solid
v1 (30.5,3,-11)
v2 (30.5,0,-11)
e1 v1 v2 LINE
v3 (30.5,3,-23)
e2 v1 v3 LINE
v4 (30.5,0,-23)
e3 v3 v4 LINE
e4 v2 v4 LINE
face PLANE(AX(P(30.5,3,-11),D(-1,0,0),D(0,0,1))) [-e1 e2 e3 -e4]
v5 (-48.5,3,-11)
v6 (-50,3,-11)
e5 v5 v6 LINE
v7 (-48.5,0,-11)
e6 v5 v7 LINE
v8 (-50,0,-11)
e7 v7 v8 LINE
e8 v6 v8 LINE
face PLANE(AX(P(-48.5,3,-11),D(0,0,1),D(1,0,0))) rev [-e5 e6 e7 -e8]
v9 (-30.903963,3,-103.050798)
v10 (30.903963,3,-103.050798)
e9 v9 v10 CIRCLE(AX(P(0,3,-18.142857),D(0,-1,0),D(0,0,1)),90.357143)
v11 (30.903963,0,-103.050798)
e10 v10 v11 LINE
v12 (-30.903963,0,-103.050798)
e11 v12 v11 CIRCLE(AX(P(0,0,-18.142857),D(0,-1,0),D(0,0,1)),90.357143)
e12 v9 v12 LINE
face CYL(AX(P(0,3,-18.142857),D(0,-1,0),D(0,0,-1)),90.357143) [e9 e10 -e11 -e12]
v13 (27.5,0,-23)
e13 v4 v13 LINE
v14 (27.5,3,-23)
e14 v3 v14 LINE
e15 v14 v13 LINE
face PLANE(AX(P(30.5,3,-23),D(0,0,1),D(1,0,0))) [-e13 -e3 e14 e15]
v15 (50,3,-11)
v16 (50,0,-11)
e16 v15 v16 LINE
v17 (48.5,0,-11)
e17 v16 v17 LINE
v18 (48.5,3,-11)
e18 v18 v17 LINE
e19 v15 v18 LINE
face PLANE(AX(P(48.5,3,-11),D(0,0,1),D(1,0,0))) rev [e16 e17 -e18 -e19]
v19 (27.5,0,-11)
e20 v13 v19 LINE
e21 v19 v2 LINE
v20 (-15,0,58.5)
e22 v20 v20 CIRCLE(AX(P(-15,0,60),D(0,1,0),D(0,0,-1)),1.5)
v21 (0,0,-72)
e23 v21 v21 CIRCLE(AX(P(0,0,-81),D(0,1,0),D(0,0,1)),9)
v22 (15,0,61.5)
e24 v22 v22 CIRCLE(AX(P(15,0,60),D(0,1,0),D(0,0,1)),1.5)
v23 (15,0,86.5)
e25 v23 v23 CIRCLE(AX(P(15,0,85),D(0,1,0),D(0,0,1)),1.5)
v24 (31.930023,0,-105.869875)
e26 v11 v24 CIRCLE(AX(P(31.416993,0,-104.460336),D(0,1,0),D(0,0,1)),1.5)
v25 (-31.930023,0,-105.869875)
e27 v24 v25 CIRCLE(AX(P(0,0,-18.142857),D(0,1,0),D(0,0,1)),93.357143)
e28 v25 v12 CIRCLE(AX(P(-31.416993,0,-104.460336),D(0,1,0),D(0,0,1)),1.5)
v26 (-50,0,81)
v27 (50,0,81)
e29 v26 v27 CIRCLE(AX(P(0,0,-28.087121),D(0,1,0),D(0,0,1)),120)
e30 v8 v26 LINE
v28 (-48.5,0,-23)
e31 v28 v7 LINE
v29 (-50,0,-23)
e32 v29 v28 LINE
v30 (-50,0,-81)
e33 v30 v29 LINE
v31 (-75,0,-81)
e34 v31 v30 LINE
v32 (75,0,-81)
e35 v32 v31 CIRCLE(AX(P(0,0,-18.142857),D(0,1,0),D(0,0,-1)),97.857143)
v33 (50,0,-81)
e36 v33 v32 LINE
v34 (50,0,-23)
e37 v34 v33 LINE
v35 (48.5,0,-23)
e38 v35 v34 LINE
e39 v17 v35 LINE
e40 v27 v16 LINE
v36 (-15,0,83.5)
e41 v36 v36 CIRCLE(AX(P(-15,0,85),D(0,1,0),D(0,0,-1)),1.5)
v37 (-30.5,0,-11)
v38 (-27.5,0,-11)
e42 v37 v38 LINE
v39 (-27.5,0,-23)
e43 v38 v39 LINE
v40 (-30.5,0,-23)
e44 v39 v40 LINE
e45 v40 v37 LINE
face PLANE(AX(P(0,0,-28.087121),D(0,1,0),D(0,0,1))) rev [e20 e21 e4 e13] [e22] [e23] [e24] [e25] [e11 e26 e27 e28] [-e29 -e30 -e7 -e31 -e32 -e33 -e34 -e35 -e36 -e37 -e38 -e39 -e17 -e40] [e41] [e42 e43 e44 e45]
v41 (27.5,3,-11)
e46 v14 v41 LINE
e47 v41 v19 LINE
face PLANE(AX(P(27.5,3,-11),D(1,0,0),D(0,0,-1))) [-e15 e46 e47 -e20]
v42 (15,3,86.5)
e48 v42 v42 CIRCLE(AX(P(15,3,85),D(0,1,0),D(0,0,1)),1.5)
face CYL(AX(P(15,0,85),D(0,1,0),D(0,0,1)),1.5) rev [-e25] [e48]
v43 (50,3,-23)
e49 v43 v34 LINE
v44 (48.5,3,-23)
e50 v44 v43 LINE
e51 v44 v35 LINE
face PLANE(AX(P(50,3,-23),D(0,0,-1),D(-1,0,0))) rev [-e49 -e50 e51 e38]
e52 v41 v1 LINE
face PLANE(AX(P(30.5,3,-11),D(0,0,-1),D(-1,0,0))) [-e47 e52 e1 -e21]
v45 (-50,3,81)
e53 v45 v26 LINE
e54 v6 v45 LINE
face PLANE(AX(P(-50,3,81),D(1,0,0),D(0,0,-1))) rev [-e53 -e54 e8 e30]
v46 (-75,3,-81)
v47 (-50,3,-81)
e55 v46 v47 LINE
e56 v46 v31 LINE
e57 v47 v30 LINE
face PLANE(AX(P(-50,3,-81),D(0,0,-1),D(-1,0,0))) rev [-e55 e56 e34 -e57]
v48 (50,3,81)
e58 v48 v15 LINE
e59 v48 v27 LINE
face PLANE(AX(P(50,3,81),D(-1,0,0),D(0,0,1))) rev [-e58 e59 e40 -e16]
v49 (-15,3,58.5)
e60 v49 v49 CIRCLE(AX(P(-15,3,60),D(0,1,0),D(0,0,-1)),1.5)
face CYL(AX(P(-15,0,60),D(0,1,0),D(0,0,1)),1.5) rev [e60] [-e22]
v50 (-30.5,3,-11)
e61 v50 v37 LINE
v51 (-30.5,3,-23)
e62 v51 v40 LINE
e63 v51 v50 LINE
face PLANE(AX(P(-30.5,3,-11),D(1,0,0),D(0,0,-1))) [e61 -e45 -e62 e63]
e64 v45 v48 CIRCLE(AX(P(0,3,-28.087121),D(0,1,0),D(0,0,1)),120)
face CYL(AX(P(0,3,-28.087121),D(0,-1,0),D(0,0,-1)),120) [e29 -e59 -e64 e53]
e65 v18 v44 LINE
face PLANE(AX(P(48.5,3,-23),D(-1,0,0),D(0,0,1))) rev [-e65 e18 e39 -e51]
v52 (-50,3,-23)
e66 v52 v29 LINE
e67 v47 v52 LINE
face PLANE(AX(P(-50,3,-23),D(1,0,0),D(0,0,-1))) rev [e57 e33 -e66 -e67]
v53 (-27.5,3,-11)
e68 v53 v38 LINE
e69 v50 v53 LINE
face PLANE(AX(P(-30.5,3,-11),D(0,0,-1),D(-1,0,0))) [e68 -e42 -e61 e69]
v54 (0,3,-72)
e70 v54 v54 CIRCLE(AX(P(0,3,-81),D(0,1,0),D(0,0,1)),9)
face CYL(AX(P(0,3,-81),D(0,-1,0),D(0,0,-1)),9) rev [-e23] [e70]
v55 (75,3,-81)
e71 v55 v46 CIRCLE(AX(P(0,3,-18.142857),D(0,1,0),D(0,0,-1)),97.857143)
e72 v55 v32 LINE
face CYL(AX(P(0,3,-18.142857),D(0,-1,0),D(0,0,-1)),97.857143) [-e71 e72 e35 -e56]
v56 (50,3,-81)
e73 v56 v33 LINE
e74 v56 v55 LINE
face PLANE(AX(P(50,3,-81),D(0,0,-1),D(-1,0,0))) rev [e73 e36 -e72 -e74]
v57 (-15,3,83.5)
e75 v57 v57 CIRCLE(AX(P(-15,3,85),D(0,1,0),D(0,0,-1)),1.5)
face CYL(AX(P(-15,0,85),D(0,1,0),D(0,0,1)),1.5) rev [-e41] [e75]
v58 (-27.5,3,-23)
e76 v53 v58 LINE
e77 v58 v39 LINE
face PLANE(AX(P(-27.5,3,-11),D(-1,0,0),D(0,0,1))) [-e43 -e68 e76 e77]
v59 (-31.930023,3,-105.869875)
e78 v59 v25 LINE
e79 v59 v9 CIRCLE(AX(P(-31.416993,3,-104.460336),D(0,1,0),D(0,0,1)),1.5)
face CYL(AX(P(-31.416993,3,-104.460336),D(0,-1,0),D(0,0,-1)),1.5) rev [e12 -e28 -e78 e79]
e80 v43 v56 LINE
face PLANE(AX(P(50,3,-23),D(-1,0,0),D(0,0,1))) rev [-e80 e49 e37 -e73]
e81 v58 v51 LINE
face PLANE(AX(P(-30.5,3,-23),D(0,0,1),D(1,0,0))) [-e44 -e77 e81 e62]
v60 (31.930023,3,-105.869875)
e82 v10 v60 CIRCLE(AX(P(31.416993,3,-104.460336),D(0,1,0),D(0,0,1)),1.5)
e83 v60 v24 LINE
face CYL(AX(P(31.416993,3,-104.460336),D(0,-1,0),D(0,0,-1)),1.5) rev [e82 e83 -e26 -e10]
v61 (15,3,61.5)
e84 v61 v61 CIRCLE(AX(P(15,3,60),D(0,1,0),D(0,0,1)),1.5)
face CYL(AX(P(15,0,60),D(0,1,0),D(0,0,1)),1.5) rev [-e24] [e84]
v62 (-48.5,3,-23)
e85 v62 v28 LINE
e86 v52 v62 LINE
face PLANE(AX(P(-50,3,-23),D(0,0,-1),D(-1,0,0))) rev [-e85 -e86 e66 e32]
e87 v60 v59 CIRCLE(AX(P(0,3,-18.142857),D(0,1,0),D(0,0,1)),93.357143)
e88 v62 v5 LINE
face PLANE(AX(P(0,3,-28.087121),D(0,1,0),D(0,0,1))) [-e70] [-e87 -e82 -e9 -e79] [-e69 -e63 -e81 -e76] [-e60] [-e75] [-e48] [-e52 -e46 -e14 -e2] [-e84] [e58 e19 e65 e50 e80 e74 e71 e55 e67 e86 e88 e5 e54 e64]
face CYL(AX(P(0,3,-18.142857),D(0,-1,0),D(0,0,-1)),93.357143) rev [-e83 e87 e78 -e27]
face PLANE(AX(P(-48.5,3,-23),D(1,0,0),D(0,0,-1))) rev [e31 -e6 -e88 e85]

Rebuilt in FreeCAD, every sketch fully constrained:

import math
import FreeCAD as App
import Part
import Sketcher
from FreeCAD import Vector


def add_polygon(sketch, points):
    """Adds a closed chain of lines whose ends are joined by coincident constraints."""
    first, n = sketch.GeometryCount, len(points)
    for a, b in zip(points, points[1:] + points[:1]):
        sketch.addGeometry(Part.LineSegment(App.Vector(*a, 0), App.Vector(*b, 0)), False)
    for i in range(n):
        sketch.addConstraint(Sketcher.Constraint("Coincident", first + i, 2, first + (i + 1) % n, 1))

doc = App.newDocument("Part")
body = doc.addObject("PartDesign::Body", "Body")

# Sketch on XZ plane
sketch1 = body.newObject("Sketcher::SketchObject", "Sketch")
sketch1.AttachmentSupport = (doc.getObject("XZ_Plane"), [""])
sketch1.MapMode = "FlatFace"
sketch1.addGeometry(Part.LineSegment(Vector(50, 81, 0), Vector(50, -11, 0)), False)  # 0
sketch1.addGeometry(Part.LineSegment(Vector(50, -11, 0), Vector(48.5, -11, 0)), False)  # 1
sketch1.addGeometry(Part.LineSegment(Vector(48.5, -11, 0), Vector(48.5, -23, 0)), False)  # 2
sketch1.addGeometry(Part.LineSegment(Vector(48.5, -23, 0), Vector(50, -23, 0)), False)  # 3
sketch1.addGeometry(Part.LineSegment(Vector(50, -23, 0), Vector(50, -81, 0)), False)  # 4
sketch1.addGeometry(Part.LineSegment(Vector(50, -81, 0), Vector(75, -81, 0)), False)  # 5
sketch1.addGeometry(Part.ArcOfCircle(Part.Circle(Vector(0, -18.1, 0), Vector(0, 0, 1), 97.9), math.radians(-140), math.radians(-40)), False)  # 6
sketch1.addGeometry(Part.LineSegment(Vector(-75, -81, 0), Vector(-50, -81, 0)), False)  # 7
sketch1.addGeometry(Part.LineSegment(Vector(-50, -81, 0), Vector(-50, -23, 0)), False)  # 8
sketch1.addGeometry(Part.LineSegment(Vector(-50, -23, 0), Vector(-48.5, -23, 0)), False)  # 9
sketch1.addGeometry(Part.LineSegment(Vector(-48.5, -23, 0), Vector(-48.5, -11, 0)), False)  # 10
sketch1.addGeometry(Part.LineSegment(Vector(-48.5, -11, 0), Vector(-50, -11, 0)), False)  # 11
sketch1.addGeometry(Part.LineSegment(Vector(-50, -11, 0), Vector(-50, 81, 0)), False)  # 12
sketch1.addGeometry(Part.ArcOfCircle(Part.Circle(Vector(0, -28.1, 0), Vector(0, 0, 1), 120), math.radians(65), math.radians(115)), False)  # 13
add_polygon(sketch1, [(-27.5, -11), (-30.5, -11), (-30.5, -23), (-27.5, -23)])  # lines 14-17
add_polygon(sketch1, [(30.5, -11), (27.5, -11), (27.5, -23), (30.5, -23)])  # lines 18-21
sketch1.addGeometry(Part.Circle(Vector(0, -81, 0), Vector(0, 0, 1), 9), False)  # 22
sketch1.addGeometry(Part.ArcOfCircle(Part.Circle(Vector(0, -18.1, 0), Vector(0, 0, 1), 93.4), math.radians(-110), math.radians(-70)), False)  # 23
sketch1.addGeometry(Part.ArcOfCircle(Part.Circle(Vector(31.4, -104.5, 0), Vector(0, 0, 1), 1.5), math.radians(-70), math.radians(110)), False)  # 24
sketch1.addGeometry(Part.ArcOfCircle(Part.Circle(Vector(0, -18.1, 0), Vector(0, 0, 1), 90.4), math.radians(-110), math.radians(-70)), False)  # 25
sketch1.addGeometry(Part.ArcOfCircle(Part.Circle(Vector(-31.4, -104.5, 0), Vector(0, 0, 1), 1.5), math.radians(70), math.radians(250)), False)  # 26
sketch1.addConstraint(Sketcher.Constraint("Coincident", 0, 2, 1, 1))
sketch1.addConstraint(Sketcher.Constraint("Coincident", 1, 2, 2, 1))
sketch1.addConstraint(Sketcher.Constraint("Coincident", 2, 2, 3, 1))
sketch1.addConstraint(Sketcher.Constraint("Coincident", 3, 2, 4, 1))
sketch1.addConstraint(Sketcher.Constraint("Coincident", 4, 2, 5, 1))
sketch1.addConstraint(Sketcher.Constraint("Coincident", 5, 2, 6, 2))
sketch1.addConstraint(Sketcher.Constraint("Coincident", 6, 1, 7, 1))
sketch1.addConstraint(Sketcher.Constraint("Coincident", 7, 2, 8, 1))
sketch1.addConstraint(Sketcher.Constraint("Coincident", 8, 2, 9, 1))
sketch1.addConstraint(Sketcher.Constraint("Coincident", 9, 2, 10, 1))
sketch1.addConstraint(Sketcher.Constraint("Coincident", 10, 2, 11, 1))
sketch1.addConstraint(Sketcher.Constraint("Coincident", 11, 2, 12, 1))
sketch1.addConstraint(Sketcher.Constraint("Coincident", 12, 2, 13, 2))
sketch1.addConstraint(Sketcher.Constraint("Coincident", 13, 1, 0, 1))
sketch1.addConstraint(Sketcher.Constraint("Tangent", 23, 2, 24, 1))
sketch1.addConstraint(Sketcher.Constraint("Tangent", 24, 2, 25, 2))
sketch1.addConstraint(Sketcher.Constraint("Tangent", 25, 1, 26, 1))
sketch1.addConstraint(Sketcher.Constraint("Tangent", 26, 2, 23, 1))
sketch1.addConstraint(Sketcher.Constraint("Vertical", 0))
sketch1.addConstraint(Sketcher.Constraint("Horizontal", 1))
sketch1.addConstraint(Sketcher.Constraint("Vertical", 2))
sketch1.addConstraint(Sketcher.Constraint("Horizontal", 3))
sketch1.addConstraint(Sketcher.Constraint("Vertical", 4))
sketch1.addConstraint(Sketcher.Constraint("Horizontal", 5))
sketch1.addConstraint(Sketcher.Constraint("Horizontal", 7))
sketch1.addConstraint(Sketcher.Constraint("Vertical", 8))
sketch1.addConstraint(Sketcher.Constraint("Horizontal", 9))
sketch1.addConstraint(Sketcher.Constraint("Vertical", 10))
sketch1.addConstraint(Sketcher.Constraint("Horizontal", 11))
sketch1.addConstraint(Sketcher.Constraint("Vertical", 12))
sketch1.addConstraint(Sketcher.Constraint("Horizontal", 14))
sketch1.addConstraint(Sketcher.Constraint("Vertical", 15))
sketch1.addConstraint(Sketcher.Constraint("Horizontal", 16))
sketch1.addConstraint(Sketcher.Constraint("Vertical", 17))
sketch1.addConstraint(Sketcher.Constraint("Horizontal", 18))
sketch1.addConstraint(Sketcher.Constraint("Vertical", 19))
sketch1.addConstraint(Sketcher.Constraint("Horizontal", 20))
sketch1.addConstraint(Sketcher.Constraint("Vertical", 21))
sketch1.addConstraint(Sketcher.Constraint("Coincident", 23, 3, 6, 3))
sketch1.addConstraint(Sketcher.Constraint("Coincident", 25, 3, 6, 3))
sketch1.addConstraint(Sketcher.Constraint("Symmetric", 4, 2, 12, 2, -1, 1))
sketch1.addConstraint(Sketcher.Constraint("Symmetric", 7, 2, 13, 1, -1, 1))
sketch1.addConstraint(Sketcher.Constraint("Symmetric", 24, 3, 26, 3, -2))
sketch1.addConstraint(Sketcher.Constraint("Symmetric", 4, 2, 7, 2, -2))
sketch1.addConstraint(Sketcher.Constraint("Symmetric", 2, 2, 9, 2, -2))
sketch1.addConstraint(Sketcher.Constraint("Symmetric", 17, 2, 18, 2, -2))
sketch1.addConstraint(Sketcher.Constraint("Symmetric", 15, 2, 20, 2, -2))
sketch1.addConstraint(Sketcher.Constraint("PointOnObject", 22, 3, -2))
sketch1.addConstraint(Sketcher.Constraint("Horizontal", 22, 3, 4, 2))
sketch1.addConstraint(Sketcher.Constraint("Horizontal", 1, 2, 10, 2))
sketch1.addConstraint(Sketcher.Constraint("Horizontal", 11, 2, 14, 2))
sketch1.addConstraint(Sketcher.Constraint("Horizontal", 9, 2, 15, 2))
sketch1.addConstraint(Sketcher.Constraint("Diameter", 22, 18.0))
sketch1.addConstraint(Sketcher.Constraint("Radius", 13, 120.0))
sketch1.addConstraint(Sketcher.Constraint("Radius", 24, 1.5))
sketch1.addConstraint(Sketcher.Constraint("DistanceX", 5, 1, 5, 2, 25.0))
sketch1.addConstraint(Sketcher.Constraint("DistanceX", 14, 2, 14, 1, 3.0))
sketch1.addConstraint(Sketcher.Constraint("DistanceY", 0, 2, 0, 1, 92.0))
sketch1.addConstraint(Sketcher.Constraint("DistanceY", 2, 2, 2, 1, 12.0))
sketch1.addConstraint(Sketcher.Constraint("DistanceY", 4, 2, 4, 1, 58.0))
sketch1.addConstraint(Sketcher.Constraint("DistanceX", 1, 2, 1, 1, 1.5))
sketch1.addConstraint(Sketcher.Constraint("DistanceX", -1, 1, 0, 2, 50.0))
sketch1.addConstraint(Sketcher.Constraint("DistanceX", 10, 2, 14, 2, 18.0))
sketch1.addConstraint(Sketcher.Constraint("Radius", 6, 97.857143))
sketch1.addConstraint(Sketcher.Constraint("Radius", 23, 93.357143))
sketch1.addConstraint(Sketcher.Constraint("DistanceY", 24, 3, 23, 3, 86.317479))
pad1 = body.newObject("PartDesign::Pad", "Pad")
pad1.Profile = sketch1
pad1.Length = 3
pad1.Reversed = True

# Sketch on XZ plane
sketch2 = body.newObject("Sketcher::SketchObject", "Sketch001")
sketch2.AttachmentSupport = (doc.getObject("XZ_Plane"), [""])
sketch2.MapMode = "FlatFace"
sketch2.AttachmentOffset = App.Placement(Vector(0, 0, -3), App.Rotation())
sketch2.addGeometry(Part.Circle(Vector(15, 60, 0), Vector(0, 0, 1), 1.5), False)
sketch2.addGeometry(Part.Circle(Vector(15, 85, 0), Vector(0, 0, 1), 1.5), False)
sketch2.addGeometry(Part.Circle(Vector(-15, 85, 0), Vector(0, 0, 1), 1.5), False)
sketch2.addGeometry(Part.Circle(Vector(-15, 60, 0), Vector(0, 0, 1), 1.5), False)
sketch2.addConstraint(Sketcher.Constraint("Equal", 0, 1))
sketch2.addConstraint(Sketcher.Constraint("Equal", 1, 2))
sketch2.addConstraint(Sketcher.Constraint("Equal", 2, 3))
sketch2.addConstraint(Sketcher.Constraint("Symmetric", 1, 3, 2, 3, -2))
sketch2.addConstraint(Sketcher.Constraint("Symmetric", 0, 3, 3, 3, -2))
sketch2.addConstraint(Sketcher.Constraint("Vertical", 0, 3, 1, 3))
sketch2.addConstraint(Sketcher.Constraint("Diameter", 0, 3.0))
sketch2.addConstraint(Sketcher.Constraint("DistanceX", -1, 1, 0, 3, 15.0))
sketch2.addConstraint(Sketcher.Constraint("DistanceY", -1, 1, 0, 3, 60.0))
sketch2.addConstraint(Sketcher.Constraint("DistanceY", -1, 1, 1, 3, 85.0))
pocket1 = body.newObject("PartDesign::Pocket", "Pocket")
pocket1.Profile = sketch2
pocket1.Type = "ThroughAll"
pocket1.Reversed = True

doc.recompute()
